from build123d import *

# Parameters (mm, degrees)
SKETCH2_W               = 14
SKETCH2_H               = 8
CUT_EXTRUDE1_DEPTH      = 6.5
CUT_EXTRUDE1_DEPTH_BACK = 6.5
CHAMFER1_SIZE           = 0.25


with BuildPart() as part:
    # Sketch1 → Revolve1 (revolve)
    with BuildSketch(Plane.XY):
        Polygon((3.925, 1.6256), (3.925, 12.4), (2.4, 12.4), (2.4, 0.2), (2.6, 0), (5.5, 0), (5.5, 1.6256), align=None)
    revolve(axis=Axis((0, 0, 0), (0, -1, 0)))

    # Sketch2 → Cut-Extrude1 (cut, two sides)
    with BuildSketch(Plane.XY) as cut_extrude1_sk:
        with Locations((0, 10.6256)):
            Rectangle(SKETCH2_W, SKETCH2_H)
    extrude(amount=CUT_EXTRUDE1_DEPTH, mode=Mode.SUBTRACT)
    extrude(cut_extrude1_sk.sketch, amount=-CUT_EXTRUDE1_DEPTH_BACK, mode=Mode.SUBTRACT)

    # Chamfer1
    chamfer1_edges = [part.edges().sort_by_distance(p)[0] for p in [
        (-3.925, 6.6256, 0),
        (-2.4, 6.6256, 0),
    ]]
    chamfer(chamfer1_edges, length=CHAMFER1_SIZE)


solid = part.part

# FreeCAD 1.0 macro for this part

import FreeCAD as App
import Part
import Sketcher
from FreeCAD import Vector
Q = App.Units.Quantity


def edges_at(feature, points):
    """Names of the edges that pass closest to the given points."""
    edges = feature.Shape.Edges
    near = lambda p: min(range(len(edges)), key=lambda i: edges[i].distToShape(Part.Vertex(*p))[0])
    return sorted({f"Edge{near(p) + 1}" for p in points})

doc = App.newDocument("Part")
body = doc.addObject("PartDesign::Body", "Body")

# Sketch on XY plane
sketch1 = body.newObject("Sketcher::SketchObject", "Sketch")
sketch1.AttachmentSupport = (doc.getObject("XY_Plane"), [""])
sketch1.MapMode = "FlatFace"
sketch1.addGeometry(Part.LineSegment(Vector(3.92, 1.63, 0), Vector(3.92, 12.4, 0)), False)
sketch1.addGeometry(Part.LineSegment(Vector(3.92, 12.4, 0), Vector(2.4, 12.4, 0)), False)
sketch1.addGeometry(Part.LineSegment(Vector(2.4, 12.4, 0), Vector(2.4, 0.2, 0)), False)
sketch1.addGeometry(Part.LineSegment(Vector(2.4, 0.2, 0), Vector(2.6, 0, 0)), False)
sketch1.addGeometry(Part.LineSegment(Vector(2.6, 0, 0), Vector(5.5, 0, 0)), False)
sketch1.addGeometry(Part.LineSegment(Vector(5.5, 0, 0), Vector(5.5, 1.63, 0)), False)
sketch1.addGeometry(Part.LineSegment(Vector(5.5, 1.63, 0), Vector(3.92, 1.63, 0)), False)
sketch1.addConstraint(Sketcher.Constraint("Coincident", 0, 2, 1, 1))
sketch1.addConstraint(Sketcher.Constraint("Coincident", 1, 2, 2, 1))
sketch1.addConstraint(Sketcher.Constraint("Coincident", 2, 2, 3, 1))
sketch1.addConstraint(Sketcher.Constraint("Coincident", 3, 2, 4, 1))
sketch1.addConstraint(Sketcher.Constraint("Coincident", 4, 2, 5, 1))
sketch1.addConstraint(Sketcher.Constraint("Coincident", 5, 2, 6, 1))
sketch1.addConstraint(Sketcher.Constraint("Coincident", 6, 2, 0, 1))
sketch1.addConstraint(Sketcher.Constraint("Vertical", 0))
sketch1.addConstraint(Sketcher.Constraint("Horizontal", 1))
sketch1.addConstraint(Sketcher.Constraint("Vertical", 2))
sketch1.addConstraint(Sketcher.Constraint("Horizontal", 4))
sketch1.addConstraint(Sketcher.Constraint("Vertical", 5))
sketch1.addConstraint(Sketcher.Constraint("Horizontal", 6))
sketch1.addConstraint(Sketcher.Constraint("PointOnObject", 3, 2, -1))
sketch1.addConstraint(Sketcher.Constraint("Angle", 3, Q("-45 deg")))
sketch1.addConstraint(Sketcher.Constraint("DistanceX", 4, 1, 4, 2, Q("2.9 mm")))
sketch1.addConstraint(Sketcher.Constraint("DistanceY", 2, 2, 2, 1, Q("12.2 mm")))
sketch1.addConstraint(Sketcher.Constraint("DistanceY", -1, 1, 0, 2, Q("12.4 mm")))
sketch1.addConstraint(Sketcher.Constraint("DistanceX", -1, 1, 1, 2, Q("2.4 mm")))
sketch1.addConstraint(Sketcher.Constraint("DistanceX", 1, 2, 1, 1, Q("1.525 mm")))
sketch1.addConstraint(Sketcher.Constraint("DistanceY", 0, 1, 0, 2, Q("10.7744 mm")))
revolution = body.newObject("PartDesign::Revolution", "Revolution")
revolution.Profile = sketch1
revolution.ReferenceAxis = (sketch1, ["V_Axis"])
revolution.Angle = 360

# Sketch on XY plane
sketch2 = body.newObject("Sketcher::SketchObject", "Sketch001")
sketch2.AttachmentSupport = (doc.getObject("XY_Plane"), [""])
sketch2.MapMode = "FlatFace"
sketch2.addGeometry(Part.LineSegment(Vector(-7, 15, 0), Vector(-7, 7, 0)), False)
sketch2.addGeometry(Part.LineSegment(Vector(-7, 7, 0), Vector(7, 7, 0)), False)
sketch2.addGeometry(Part.LineSegment(Vector(7, 7, 0), Vector(7, 15, 0)), False)
sketch2.addGeometry(Part.LineSegment(Vector(7, 15, 0), Vector(-7, 15, 0)), False)
sketch2.addConstraint(Sketcher.Constraint("Coincident", 0, 2, 1, 1))
sketch2.addConstraint(Sketcher.Constraint("Coincident", 1, 2, 2, 1))
sketch2.addConstraint(Sketcher.Constraint("Coincident", 2, 2, 3, 1))
sketch2.addConstraint(Sketcher.Constraint("Coincident", 3, 2, 0, 1))
sketch2.addConstraint(Sketcher.Constraint("Vertical", 0))
sketch2.addConstraint(Sketcher.Constraint("Horizontal", 1))
sketch2.addConstraint(Sketcher.Constraint("Vertical", 2))
sketch2.addConstraint(Sketcher.Constraint("Horizontal", 3))
sketch2.addConstraint(Sketcher.Constraint("DistanceX", 1, 1, 1, 2, Q("14 mm")))
sketch2.addConstraint(Sketcher.Constraint("DistanceY", 0, 2, 0, 1, Q("8 mm")))
sketch2.addConstraint(Sketcher.Constraint("DistanceX", 0, 2, -1, 1, Q("7 mm")))
sketch2.addConstraint(Sketcher.Constraint("DistanceY", -1, 1, 0, 2, Q("6.6256 mm")))
pocket1 = body.newObject("PartDesign::Pocket", "Pocket")
pocket1.Profile = sketch2
pocket1.Type = "ThroughAll"
pocket1.Midplane = True
doc.recompute()

chamfer = body.newObject("PartDesign::Chamfer", "Chamfer")
chamfer.Base = (pocket1, edges_at(pocket1, [(-3.925, 6.626, 0), (-2.4, 6.626, 0)]))
chamfer.Size = 0.25

doc.recompute()
